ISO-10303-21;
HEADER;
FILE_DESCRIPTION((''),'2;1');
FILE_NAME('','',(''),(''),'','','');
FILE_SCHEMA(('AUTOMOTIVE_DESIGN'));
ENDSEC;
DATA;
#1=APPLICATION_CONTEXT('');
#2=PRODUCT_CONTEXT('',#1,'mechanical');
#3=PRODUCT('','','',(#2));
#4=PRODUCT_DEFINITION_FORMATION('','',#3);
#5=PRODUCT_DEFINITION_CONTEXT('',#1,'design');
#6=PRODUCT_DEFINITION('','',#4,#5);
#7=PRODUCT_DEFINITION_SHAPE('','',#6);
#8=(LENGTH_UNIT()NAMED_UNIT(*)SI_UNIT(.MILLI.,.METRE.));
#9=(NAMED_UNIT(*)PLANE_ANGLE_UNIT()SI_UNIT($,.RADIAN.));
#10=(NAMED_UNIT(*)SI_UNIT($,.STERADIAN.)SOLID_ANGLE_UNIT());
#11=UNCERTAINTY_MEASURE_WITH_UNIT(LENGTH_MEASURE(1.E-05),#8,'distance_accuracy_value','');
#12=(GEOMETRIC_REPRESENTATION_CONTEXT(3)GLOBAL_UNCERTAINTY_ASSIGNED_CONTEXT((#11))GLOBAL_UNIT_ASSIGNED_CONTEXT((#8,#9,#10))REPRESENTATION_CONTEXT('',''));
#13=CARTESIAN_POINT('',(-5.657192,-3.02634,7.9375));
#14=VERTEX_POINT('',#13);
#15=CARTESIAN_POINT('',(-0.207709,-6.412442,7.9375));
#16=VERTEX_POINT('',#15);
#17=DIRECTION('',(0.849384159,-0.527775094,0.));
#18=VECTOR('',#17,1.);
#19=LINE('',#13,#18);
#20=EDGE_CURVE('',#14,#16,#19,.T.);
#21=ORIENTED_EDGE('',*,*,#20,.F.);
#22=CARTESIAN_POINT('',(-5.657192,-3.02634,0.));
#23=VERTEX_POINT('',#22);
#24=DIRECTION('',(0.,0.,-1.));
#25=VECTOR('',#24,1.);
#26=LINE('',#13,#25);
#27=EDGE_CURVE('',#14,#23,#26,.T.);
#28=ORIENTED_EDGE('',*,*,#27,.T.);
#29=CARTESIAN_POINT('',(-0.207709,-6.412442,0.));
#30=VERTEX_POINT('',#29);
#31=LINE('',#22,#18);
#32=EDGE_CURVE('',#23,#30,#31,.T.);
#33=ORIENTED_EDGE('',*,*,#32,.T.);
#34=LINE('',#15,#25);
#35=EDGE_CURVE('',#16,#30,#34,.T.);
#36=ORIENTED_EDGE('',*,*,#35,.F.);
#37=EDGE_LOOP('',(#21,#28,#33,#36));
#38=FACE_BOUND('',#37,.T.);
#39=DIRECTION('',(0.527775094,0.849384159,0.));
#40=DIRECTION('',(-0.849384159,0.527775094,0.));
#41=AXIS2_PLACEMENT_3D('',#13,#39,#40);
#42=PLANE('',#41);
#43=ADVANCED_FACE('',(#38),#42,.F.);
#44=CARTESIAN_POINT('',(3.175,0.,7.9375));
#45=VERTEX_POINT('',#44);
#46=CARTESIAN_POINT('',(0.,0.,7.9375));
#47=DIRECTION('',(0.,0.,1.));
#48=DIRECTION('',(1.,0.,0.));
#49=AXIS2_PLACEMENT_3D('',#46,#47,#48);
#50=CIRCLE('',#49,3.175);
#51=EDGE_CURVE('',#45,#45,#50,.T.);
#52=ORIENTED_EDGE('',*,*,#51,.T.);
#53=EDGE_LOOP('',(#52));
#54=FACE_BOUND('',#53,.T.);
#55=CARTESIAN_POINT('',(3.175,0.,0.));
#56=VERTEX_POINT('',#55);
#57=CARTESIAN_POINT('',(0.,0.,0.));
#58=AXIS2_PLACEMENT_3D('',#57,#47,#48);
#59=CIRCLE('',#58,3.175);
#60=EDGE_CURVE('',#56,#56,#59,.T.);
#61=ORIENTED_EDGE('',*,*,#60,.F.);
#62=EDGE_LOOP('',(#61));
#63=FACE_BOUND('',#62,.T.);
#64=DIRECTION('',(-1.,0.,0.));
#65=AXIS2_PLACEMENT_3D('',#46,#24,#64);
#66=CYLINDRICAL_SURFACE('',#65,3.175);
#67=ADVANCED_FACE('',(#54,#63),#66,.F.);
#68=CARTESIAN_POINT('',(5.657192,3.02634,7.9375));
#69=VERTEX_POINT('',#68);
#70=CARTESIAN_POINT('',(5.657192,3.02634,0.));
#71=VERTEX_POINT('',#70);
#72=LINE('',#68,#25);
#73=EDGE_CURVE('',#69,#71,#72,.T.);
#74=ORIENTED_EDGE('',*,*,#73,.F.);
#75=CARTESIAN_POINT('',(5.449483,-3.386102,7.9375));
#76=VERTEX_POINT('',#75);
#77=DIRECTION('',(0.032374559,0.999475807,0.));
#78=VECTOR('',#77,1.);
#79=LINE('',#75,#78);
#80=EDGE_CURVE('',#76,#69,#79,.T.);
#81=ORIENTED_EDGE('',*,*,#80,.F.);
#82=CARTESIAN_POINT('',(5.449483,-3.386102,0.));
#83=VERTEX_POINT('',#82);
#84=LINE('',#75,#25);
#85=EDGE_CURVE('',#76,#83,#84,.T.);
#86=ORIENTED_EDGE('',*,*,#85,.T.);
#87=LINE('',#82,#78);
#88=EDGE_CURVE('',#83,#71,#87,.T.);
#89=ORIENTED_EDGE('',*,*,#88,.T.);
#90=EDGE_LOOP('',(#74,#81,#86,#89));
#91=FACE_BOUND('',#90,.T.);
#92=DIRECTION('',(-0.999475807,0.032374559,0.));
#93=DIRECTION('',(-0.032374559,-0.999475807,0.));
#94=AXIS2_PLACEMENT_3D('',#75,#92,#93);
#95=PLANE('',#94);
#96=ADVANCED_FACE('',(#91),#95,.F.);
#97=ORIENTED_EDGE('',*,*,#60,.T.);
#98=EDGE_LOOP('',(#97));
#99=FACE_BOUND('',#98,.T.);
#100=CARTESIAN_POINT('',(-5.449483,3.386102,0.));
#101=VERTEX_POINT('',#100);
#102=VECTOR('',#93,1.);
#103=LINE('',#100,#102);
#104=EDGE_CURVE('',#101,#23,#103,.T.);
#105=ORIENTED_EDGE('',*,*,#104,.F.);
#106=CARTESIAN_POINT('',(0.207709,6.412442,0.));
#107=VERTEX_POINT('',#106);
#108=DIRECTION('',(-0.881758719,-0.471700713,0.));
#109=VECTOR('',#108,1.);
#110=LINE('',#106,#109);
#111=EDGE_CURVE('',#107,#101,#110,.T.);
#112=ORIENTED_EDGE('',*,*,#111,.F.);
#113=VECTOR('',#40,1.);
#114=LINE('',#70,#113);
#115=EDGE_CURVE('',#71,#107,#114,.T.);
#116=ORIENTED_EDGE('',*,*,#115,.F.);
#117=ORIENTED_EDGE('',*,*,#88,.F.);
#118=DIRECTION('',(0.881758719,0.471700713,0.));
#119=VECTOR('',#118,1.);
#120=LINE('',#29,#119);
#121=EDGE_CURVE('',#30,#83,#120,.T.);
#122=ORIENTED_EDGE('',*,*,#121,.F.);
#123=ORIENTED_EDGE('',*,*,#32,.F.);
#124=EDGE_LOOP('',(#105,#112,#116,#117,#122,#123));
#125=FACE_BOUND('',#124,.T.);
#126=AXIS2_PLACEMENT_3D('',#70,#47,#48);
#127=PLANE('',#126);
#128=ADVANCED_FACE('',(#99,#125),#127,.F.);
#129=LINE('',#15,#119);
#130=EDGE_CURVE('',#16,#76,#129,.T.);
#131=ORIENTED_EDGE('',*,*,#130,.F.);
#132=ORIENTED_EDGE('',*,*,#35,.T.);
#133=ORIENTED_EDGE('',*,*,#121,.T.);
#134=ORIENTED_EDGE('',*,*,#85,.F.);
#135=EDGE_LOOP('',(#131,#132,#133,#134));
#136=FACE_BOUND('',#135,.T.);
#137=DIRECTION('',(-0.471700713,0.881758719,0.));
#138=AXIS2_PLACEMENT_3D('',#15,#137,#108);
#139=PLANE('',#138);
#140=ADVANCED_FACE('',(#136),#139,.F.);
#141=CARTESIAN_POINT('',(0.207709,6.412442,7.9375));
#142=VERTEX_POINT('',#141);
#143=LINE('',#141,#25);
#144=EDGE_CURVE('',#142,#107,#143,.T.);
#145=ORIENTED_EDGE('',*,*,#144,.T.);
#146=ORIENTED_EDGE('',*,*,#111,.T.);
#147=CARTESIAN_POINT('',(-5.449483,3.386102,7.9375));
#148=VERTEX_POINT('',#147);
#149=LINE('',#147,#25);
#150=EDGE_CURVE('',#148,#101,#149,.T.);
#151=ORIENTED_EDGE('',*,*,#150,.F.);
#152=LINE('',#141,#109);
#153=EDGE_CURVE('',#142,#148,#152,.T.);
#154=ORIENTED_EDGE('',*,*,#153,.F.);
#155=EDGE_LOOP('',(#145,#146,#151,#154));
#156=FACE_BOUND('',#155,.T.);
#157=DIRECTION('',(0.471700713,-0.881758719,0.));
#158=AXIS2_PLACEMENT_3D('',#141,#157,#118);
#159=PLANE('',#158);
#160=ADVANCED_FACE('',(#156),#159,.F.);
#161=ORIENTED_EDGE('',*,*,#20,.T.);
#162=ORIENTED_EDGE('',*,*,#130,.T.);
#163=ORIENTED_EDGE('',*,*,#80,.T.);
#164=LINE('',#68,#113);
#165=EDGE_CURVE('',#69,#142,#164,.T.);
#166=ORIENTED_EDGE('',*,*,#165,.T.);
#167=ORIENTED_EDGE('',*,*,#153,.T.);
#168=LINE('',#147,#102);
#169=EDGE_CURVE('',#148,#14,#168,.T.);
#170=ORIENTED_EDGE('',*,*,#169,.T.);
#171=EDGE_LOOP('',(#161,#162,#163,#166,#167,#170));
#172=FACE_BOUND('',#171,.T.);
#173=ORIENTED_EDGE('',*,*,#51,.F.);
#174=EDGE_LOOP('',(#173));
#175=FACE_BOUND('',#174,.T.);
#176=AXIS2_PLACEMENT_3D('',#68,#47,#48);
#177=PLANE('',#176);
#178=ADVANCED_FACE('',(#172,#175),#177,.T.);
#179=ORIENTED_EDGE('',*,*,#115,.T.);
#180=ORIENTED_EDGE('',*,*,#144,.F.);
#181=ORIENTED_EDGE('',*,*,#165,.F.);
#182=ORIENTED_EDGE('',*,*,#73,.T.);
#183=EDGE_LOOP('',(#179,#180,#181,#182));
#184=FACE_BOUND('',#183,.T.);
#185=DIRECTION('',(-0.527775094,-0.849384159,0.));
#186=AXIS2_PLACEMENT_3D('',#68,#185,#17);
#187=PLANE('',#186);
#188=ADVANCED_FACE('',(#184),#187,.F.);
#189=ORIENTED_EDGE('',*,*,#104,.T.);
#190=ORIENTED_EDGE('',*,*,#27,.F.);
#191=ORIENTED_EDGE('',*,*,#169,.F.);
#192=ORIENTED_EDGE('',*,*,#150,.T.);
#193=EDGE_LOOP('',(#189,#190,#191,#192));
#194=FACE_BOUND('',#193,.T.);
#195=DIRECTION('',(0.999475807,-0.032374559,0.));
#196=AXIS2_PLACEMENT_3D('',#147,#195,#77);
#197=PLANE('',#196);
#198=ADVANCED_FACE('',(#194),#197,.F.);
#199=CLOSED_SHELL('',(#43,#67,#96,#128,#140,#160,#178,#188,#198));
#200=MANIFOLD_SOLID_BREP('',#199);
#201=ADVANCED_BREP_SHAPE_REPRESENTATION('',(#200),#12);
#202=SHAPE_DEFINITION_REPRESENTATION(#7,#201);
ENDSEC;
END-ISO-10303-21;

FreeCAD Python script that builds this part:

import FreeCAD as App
import Part
import Sketcher
from FreeCAD import Vector
Q = App.Units.Quantity

doc = App.newDocument("Part")
body = doc.addObject("PartDesign::Body", "Body")

sketch1 = body.newObject("Sketcher::SketchObject", "Sketch")
sketch1.AttachmentSupport = (doc.getObject("XY_Plane"), [""])
sketch1.MapMode = "FlatFace"
sketch1.addGeometry(Part.LineSegment(Vector(5.7, 3, 0), Vector(0.2, 6.4, 0)), False)
sketch1.addGeometry(Part.LineSegment(Vector(0.2, 6.4, 0), Vector(-5.4, 3.4, 0)), False)
sketch1.addGeometry(Part.LineSegment(Vector(-5.4, 3.4, 0), Vector(-5.7, -3, 0)), False)
sketch1.addGeometry(Part.LineSegment(Vector(-5.7, -3, 0), Vector(-0.2, -6.4, 0)), False)
sketch1.addGeometry(Part.LineSegment(Vector(-0.2, -6.4, 0), Vector(5.4, -3.4, 0)), False)
sketch1.addGeometry(Part.LineSegment(Vector(5.4, -3.4, 0), Vector(5.7, 3, 0)), False)
sketch1.addGeometry(Part.Circle(Vector(0, 0, 0), Vector(0, 0, 1), 3.2), False)
sketch1.addConstraint(Sketcher.Constraint("Coincident", 0, 2, 1, 1))
sketch1.addConstraint(Sketcher.Constraint("Coincident", 1, 2, 2, 1))
sketch1.addConstraint(Sketcher.Constraint("Coincident", 2, 2, 3, 1))
sketch1.addConstraint(Sketcher.Constraint("Coincident", 3, 2, 4, 1))
sketch1.addConstraint(Sketcher.Constraint("Coincident", 4, 2, 5, 1))
sketch1.addConstraint(Sketcher.Constraint("Coincident", 5, 2, 0, 1))
sketch1.addConstraint(Sketcher.Constraint("Coincident", 6, 3, -1, 1))
sketch1.addConstraint(Sketcher.Constraint("Symmetric", 0, 2, 3, 2, -1, 1))
sketch1.addConstraint(Sketcher.Constraint("Symmetric", 1, 2, 4, 2, -1, 1))
sketch1.addConstraint(Sketcher.Constraint("Symmetric", 2, 2, 5, 2, -1, 1))
sketch1.addConstraint(Sketcher.Constraint("Equal", 0, 1))
sketch1.addConstraint(Sketcher.Constraint("Equal", 1, 2))
sketch1.addConstraint(Sketcher.Constraint("Diameter", 6, Q("0.25 in")))
sketch1.addConstraint(Sketcher.Constraint("DistanceX", 2, 2, 0, 2, Q("5.864901 mm")))
sketch1.addConstraint(Sketcher.Constraint("DistanceX", -1, 1, 0, 2, Q("0.207709 mm")))
sketch1.addConstraint(Sketcher.Constraint("DistanceY", -1, 1, 0, 2, Q("6.412442 mm")))
sketch1.addConstraint(Sketcher.Constraint("DistanceY", 2, 2, -1, 1, Q("3.02634 mm")))
pad1 = body.newObject("PartDesign::Pad", "Pad")
pad1.Profile = sketch1
pad1.Length = Q("0.3125 in")

doc.recompute()
